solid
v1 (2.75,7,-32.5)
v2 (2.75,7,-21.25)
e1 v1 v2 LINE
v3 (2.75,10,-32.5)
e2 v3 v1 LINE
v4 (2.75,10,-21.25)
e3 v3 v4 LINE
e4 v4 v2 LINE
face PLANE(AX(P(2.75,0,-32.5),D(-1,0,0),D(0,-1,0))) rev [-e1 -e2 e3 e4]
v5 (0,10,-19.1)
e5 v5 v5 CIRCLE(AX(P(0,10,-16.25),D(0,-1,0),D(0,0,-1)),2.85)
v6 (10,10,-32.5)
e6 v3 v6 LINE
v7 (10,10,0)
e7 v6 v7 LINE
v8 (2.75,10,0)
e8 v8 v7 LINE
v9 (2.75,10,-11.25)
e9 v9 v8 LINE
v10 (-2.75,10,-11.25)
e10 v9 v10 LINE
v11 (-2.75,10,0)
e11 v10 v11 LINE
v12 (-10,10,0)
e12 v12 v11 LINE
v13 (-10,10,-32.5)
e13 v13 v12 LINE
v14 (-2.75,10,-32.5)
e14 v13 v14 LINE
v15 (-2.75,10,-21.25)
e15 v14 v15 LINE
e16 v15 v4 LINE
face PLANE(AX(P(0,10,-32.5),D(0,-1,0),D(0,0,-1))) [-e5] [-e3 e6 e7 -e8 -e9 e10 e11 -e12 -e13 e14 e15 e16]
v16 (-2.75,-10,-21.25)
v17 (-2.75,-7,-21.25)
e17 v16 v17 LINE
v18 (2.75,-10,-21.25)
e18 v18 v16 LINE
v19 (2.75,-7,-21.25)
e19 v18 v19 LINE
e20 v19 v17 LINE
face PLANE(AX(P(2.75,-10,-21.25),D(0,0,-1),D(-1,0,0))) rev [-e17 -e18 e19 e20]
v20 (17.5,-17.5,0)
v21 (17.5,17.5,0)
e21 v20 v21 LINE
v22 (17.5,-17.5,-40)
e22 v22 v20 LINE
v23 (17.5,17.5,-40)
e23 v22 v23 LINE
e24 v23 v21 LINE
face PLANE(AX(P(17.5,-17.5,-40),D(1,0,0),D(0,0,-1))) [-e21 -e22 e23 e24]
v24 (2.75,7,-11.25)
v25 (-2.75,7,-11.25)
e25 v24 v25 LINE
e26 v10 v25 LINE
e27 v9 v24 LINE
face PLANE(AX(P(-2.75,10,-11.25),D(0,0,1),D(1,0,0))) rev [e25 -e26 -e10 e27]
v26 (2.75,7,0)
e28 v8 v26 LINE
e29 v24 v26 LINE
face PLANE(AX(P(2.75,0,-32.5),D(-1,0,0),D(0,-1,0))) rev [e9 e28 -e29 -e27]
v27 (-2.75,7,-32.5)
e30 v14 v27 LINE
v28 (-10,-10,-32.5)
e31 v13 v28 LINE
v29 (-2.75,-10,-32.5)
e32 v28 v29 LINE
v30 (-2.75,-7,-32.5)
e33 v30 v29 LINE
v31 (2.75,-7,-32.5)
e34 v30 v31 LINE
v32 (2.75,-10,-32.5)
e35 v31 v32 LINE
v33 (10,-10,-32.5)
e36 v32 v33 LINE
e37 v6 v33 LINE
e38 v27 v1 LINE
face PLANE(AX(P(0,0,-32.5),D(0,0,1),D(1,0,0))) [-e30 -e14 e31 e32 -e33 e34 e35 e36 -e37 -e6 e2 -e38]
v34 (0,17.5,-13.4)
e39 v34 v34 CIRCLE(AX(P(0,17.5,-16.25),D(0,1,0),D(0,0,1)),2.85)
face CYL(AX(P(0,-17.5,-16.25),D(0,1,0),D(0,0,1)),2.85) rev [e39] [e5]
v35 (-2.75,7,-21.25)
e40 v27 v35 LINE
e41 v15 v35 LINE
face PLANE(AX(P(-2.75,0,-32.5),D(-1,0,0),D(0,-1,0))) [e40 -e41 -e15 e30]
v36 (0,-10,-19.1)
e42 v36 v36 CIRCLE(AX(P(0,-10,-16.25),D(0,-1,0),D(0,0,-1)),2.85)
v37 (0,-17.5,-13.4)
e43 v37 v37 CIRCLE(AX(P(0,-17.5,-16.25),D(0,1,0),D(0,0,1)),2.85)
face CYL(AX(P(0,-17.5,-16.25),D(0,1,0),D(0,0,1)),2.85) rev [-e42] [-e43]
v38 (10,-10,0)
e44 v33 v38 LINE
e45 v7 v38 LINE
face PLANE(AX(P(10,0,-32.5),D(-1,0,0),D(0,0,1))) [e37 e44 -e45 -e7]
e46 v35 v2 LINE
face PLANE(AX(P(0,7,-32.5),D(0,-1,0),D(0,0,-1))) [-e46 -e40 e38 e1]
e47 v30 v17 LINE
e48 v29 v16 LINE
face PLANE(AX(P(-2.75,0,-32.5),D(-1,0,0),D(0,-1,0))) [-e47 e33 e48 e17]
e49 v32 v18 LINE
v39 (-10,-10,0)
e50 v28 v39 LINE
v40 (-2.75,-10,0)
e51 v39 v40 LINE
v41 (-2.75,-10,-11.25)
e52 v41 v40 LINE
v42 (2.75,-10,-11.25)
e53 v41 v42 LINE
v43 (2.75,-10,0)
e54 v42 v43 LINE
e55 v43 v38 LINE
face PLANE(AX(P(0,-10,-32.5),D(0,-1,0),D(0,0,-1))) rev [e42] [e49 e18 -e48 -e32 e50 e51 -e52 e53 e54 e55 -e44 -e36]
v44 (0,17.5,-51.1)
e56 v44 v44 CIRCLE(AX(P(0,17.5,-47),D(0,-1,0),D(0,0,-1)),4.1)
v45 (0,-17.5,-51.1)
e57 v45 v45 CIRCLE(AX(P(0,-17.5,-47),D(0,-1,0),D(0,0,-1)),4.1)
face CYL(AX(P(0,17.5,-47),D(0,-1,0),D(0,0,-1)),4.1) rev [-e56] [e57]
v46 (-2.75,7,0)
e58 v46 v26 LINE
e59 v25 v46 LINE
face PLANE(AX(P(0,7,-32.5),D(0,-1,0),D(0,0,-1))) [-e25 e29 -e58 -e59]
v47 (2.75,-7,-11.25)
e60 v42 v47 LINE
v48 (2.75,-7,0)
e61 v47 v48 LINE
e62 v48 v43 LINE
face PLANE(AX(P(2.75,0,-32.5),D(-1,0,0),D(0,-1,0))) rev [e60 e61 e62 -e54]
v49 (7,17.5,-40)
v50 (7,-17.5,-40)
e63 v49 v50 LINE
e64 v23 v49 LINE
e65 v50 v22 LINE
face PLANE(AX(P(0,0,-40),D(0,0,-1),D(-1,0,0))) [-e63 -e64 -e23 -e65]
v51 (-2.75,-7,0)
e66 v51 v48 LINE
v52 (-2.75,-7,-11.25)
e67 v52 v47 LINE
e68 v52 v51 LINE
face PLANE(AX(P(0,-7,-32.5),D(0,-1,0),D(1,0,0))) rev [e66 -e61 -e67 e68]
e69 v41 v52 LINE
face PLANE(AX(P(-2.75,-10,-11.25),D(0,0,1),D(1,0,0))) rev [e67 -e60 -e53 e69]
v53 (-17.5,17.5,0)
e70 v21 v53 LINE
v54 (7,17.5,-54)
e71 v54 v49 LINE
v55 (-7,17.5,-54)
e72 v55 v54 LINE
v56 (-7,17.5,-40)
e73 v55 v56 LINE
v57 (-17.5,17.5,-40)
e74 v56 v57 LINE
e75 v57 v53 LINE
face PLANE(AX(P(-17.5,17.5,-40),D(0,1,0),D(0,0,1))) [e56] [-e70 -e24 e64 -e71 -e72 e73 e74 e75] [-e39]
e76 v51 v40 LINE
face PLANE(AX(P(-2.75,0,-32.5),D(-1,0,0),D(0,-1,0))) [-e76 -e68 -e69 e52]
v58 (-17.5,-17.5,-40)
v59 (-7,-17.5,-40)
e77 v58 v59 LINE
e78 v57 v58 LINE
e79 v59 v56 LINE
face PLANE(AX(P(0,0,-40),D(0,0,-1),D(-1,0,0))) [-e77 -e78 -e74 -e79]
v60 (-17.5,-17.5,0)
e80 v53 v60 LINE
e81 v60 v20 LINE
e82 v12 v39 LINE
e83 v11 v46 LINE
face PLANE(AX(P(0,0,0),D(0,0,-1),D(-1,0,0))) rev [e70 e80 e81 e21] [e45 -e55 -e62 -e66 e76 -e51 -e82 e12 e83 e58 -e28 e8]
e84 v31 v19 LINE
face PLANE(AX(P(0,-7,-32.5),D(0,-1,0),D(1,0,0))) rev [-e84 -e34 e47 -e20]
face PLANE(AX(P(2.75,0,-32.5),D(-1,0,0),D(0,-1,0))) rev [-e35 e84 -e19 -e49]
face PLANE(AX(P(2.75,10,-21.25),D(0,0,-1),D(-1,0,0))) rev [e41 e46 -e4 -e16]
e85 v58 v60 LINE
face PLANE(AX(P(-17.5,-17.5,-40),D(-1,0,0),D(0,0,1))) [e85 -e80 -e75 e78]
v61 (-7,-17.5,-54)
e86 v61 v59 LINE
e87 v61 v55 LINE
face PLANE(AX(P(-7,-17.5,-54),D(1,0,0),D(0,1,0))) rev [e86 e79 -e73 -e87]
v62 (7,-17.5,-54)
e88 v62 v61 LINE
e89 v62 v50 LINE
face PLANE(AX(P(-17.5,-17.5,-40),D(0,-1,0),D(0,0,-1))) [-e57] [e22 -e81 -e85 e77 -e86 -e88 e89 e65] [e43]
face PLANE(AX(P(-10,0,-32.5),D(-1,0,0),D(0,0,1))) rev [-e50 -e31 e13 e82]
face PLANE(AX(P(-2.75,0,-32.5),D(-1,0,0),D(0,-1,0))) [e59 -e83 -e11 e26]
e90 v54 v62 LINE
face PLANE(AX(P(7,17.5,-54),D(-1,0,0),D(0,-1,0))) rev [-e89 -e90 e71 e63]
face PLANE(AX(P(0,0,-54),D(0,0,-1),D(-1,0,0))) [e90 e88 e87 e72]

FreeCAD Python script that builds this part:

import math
import FreeCAD as App
import Part
import Sketcher

V = App.Vector
Q = App.Units.Quantity


def add_polygon(sketch, points):
    """Adds a closed chain of lines whose ends are joined by coincident constraints."""
    first, n = sketch.GeometryCount, len(points)
    for a, b in zip(points, points[1:] + points[:1]):
        sketch.addGeometry(Part.LineSegment(App.Vector(*a, 0), App.Vector(*b, 0)), False)
    for i in range(n):
        sketch.addConstraint(Sketcher.Constraint("Coincident", first + i, 2, first + (i + 1) % n, 1))

doc = App.newDocument("Part")
body = doc.addObject("PartDesign::Body", "Body")

sketch1 = body.newObject("Sketcher::SketchObject", "Sketch")
sketch1.AttachmentSupport = (doc.getObject("XY_Plane"), [""])
sketch1.MapMode = "FlatFace"
add_polygon(sketch1, [(-18, 18), (-18, -18), (18, -18), (18, 18)])
sketch1.addConstraint([
    Sketcher.Constraint("Vertical", 0),
    Sketcher.Constraint("Horizontal", 1),
    Sketcher.Constraint("Vertical", 2),
    Sketcher.Constraint("Horizontal", 3),
    Sketcher.Constraint("Symmetric", 0, 2, 2, 2, -1, 1),
    Sketcher.Constraint("Equal", 3, 0),
    Sketcher.Constraint("DistanceX", 1, 1, 1, 2, Q("35 mm")),
])
pad1 = body.newObject("PartDesign::Pad", "Pad")
pad1.Profile = sketch1
pad1.Length = 40
pad1.Reversed = True

sketch2 = body.newObject("Sketcher::SketchObject", "Sketch001")
sketch2.AttachmentSupport = (doc.getObject("XY_Plane"), [""])
sketch2.MapMode = "FlatFace"
add_polygon(sketch2, [(2.8, 7), (-2.8, 7), (-2.8, 10), (-10, 10), (-10, -10), (-2.8, -10), (-2.8, -7), (2.8, -7), (2.8, -10), (10, -10), (10, 10), (2.8, 10)])
sketch2.addConstraint([
    Sketcher.Constraint("Horizontal", 0),
    Sketcher.Constraint("Vertical", 1),
    Sketcher.Constraint("Horizontal", 2),
    Sketcher.Constraint("Vertical", 3),
    Sketcher.Constraint("Horizontal", 4),
    Sketcher.Constraint("Vertical", 5),
    Sketcher.Constraint("Horizontal", 6),
    Sketcher.Constraint("Vertical", 7),
    Sketcher.Constraint("Horizontal", 8),
    Sketcher.Constraint("Vertical", 9),
    Sketcher.Constraint("Horizontal", 10),
    Sketcher.Constraint("Vertical", 11),
    Sketcher.Constraint("Symmetric", 0, 2, 6, 2, -1, 1),
    Sketcher.Constraint("Symmetric", 2, 2, 8, 2, -1, 1),
    Sketcher.Constraint("Symmetric", 4, 2, 10, 2, -1, 1),
    Sketcher.Constraint("Symmetric", 4, 2, 7, 2, -2),
    Sketcher.Constraint("DistanceY", 1, 1, 1, 2, Q("3 mm")),
    Sketcher.Constraint("DistanceY", 3, 2, 3, 1, Q("20 mm")),
    Sketcher.Constraint("DistanceX", 0, 2, 0, 1, Q("5.5 mm")),
    Sketcher.Constraint("DistanceX", 2, 2, -1, 1, Q("10 mm")),
])
pocket1 = body.newObject("PartDesign::Pocket", "Pocket")
pocket1.Profile = sketch2
pocket1.Length = 32.5

sketch3 = body.newObject("Sketcher::SketchObject", "Sketch002")
sketch3.AttachmentSupport = (doc.getObject("XZ_Plane"), [""])
sketch3.MapMode = "FlatFace"
sketch3.AttachmentOffset = App.Placement(V(0, 0, -7), App.Rotation())
add_polygon(sketch3, [(-3, -11), (-3, -21), (3, -21), (3, -11)])
sketch3.addConstraint([
    Sketcher.Constraint("Vertical", 0),
    Sketcher.Constraint("Horizontal", 1),
    Sketcher.Constraint("Vertical", 2),
    Sketcher.Constraint("Horizontal", 3),
    Sketcher.Constraint("DistanceY", 0, 2, 0, 1, Q("10 mm")),
    Sketcher.Constraint("DistanceX", 1, 1, 1, 2, Q("5.5 mm")),
    Sketcher.Constraint("DistanceX", 0, 2, -1, 1, Q("2.75 mm")),
    Sketcher.Constraint("DistanceY", 0, 2, -1, 1, Q("21.25 mm")),
])
pocket2 = body.newObject("PartDesign::Pocket", "Pocket001")
pocket2.Profile = sketch3
pocket2.Length = 3

sketch4 = body.newObject("Sketcher::SketchObject", "Sketch003")
sketch4.AttachmentSupport = (doc.getObject("XZ_Plane"), [""])
sketch4.MapMode = "FlatFace"
sketch4.AttachmentOffset = App.Placement(V(0, 0, 7), App.Rotation())
add_polygon(sketch4, [(-3, -21), (-3, -11), (3, -11), (3, -21)])
sketch4.addConstraint([
    Sketcher.Constraint("Vertical", 0),
    Sketcher.Constraint("Horizontal", 1),
    Sketcher.Constraint("Vertical", 2),
    Sketcher.Constraint("Horizontal", 3),
    Sketcher.Constraint("DistanceY", 0, 1, 0, 2, Q("10 mm")),
    Sketcher.Constraint("DistanceX", 1, 1, 1, 2, Q("5.5 mm")),
    Sketcher.Constraint("DistanceX", 0, 2, -1, 1, Q("2.75 mm")),
    Sketcher.Constraint("DistanceY", 0, 2, -1, 1, Q("11.25 mm")),
])
pocket3 = body.newObject("PartDesign::Pocket", "Pocket002")
pocket3.Profile = sketch4
pocket3.Length = 3
pocket3.Reversed = True

sketch5 = body.newObject("Sketcher::SketchObject", "Sketch004")
sketch5.AttachmentSupport = (doc.getObject("XZ_Plane"), [""])
sketch5.MapMode = "FlatFace"
sketch5.AttachmentOffset = App.Placement(V(0, 0, -17.5), App.Rotation())
sketch5.addGeometry([
    Part.ArcOfCircle(Part.Circle(V(0, -16.2, 0), V(0, 0, 1), 2.9), math.radians(90), math.radians(270)),
    Part.ArcOfCircle(Part.Circle(V(0, -16.3, 0), V(0, 0, 1), 2.9), math.radians(0), math.radians(90)),
    Part.ArcOfCircle(Part.Circle(V(0, -16.2, 0), V(0, 0, 1), 2.9), math.radians(-90), math.radians(0)),
], False)
sketch5.addConstraint([
    Sketcher.Constraint("Tangent", 0, 1, 1, 2),
    Sketcher.Constraint("Tangent", 1, 1, 2, 2),
    Sketcher.Constraint("Tangent", 2, 1, 0, 2),
    Sketcher.Constraint("PointOnObject", 0, 3, -2),
    Sketcher.Constraint("PointOnObject", 0, 1, -2),
    Sketcher.Constraint("PointOnObject", 2, 1, -2),
    Sketcher.Constraint("Horizontal", 2, 3, 1, 1),
    Sketcher.Constraint("Radius", 0, Q("2.85 mm")),
    Sketcher.Constraint("DistanceY", 0, 1, -1, 1, Q("13.4 mm")),
])
pocket4 = body.newObject("PartDesign::Pocket", "Pocket003")
pocket4.Profile = sketch5
pocket4.Type = "ThroughAll"
pocket4.Reversed = True

sketch6 = body.newObject("Sketcher::SketchObject", "Sketch005")
sketch6.AttachmentSupport = (doc.getObject("XY_Plane"), [""])
sketch6.MapMode = "FlatFace"
sketch6.AttachmentOffset = App.Placement(V(0, 0, -40), App.Rotation())
add_polygon(sketch6, [(7, 18), (7, -18), (-7, -18), (-7, 18)])
sketch6.addConstraint([
    Sketcher.Constraint("Vertical", 0),
    Sketcher.Constraint("Horizontal", 1),
    Sketcher.Constraint("Vertical", 2),
    Sketcher.Constraint("Horizontal", 3),
    Sketcher.Constraint("Symmetric", 0, 2, 2, 2, -1, 1),
    Sketcher.Constraint("DistanceX", 1, 2, 1, 1, Q("14 mm")),
    Sketcher.Constraint("DistanceY", 0, 2, 0, 1, Q("35 mm")),
])
pad2 = body.newObject("PartDesign::Pad", "Pad001")
pad2.Profile = sketch6
pad2.Length = 14
pad2.Reversed = True

sketch7 = body.newObject("Sketcher::SketchObject", "Sketch006")
sketch7.AttachmentSupport = (doc.getObject("XZ_Plane"), [""])
sketch7.MapMode = "FlatFace"
sketch7.AttachmentOffset = App.Placement(V(0, 0, -17.5), App.Rotation())
sketch7.addGeometry([
    Part.ArcOfCircle(Part.Circle(V(0, -47, 0), V(0, 0, 1), 4), math.radians(90), math.radians(270)),
    Part.ArcOfCircle(Part.Circle(V(0, -47, 0), V(0, 0, 1), 4), math.radians(0), math.radians(90)),
    Part.ArcOfCircle(Part.Circle(V(0, -47, 0), V(0, 0, 1), 4), math.radians(-90), math.radians(0)),
], False)
sketch7.addConstraint([
    Sketcher.Constraint("Tangent", 0, 1, 1, 2),
    Sketcher.Constraint("Tangent", 1, 1, 2, 2),
    Sketcher.Constraint("Tangent", 2, 1, 0, 2),
    Sketcher.Constraint("PointOnObject", 0, 3, -2),
    Sketcher.Constraint("PointOnObject", 0, 1, -2),
    Sketcher.Constraint("PointOnObject", 2, 1, -2),
    Sketcher.Constraint("Horizontal", 2, 3, 1, 1),
    Sketcher.Constraint("Radius", 0, Q("4.03 mm")),
    Sketcher.Constraint("DistanceY", 0, 3, -1, 1, Q("47 mm")),
])
pocket5 = body.newObject("PartDesign::Pocket", "Pocket004")
pocket5.Profile = sketch7
pocket5.Type = "ThroughAll"
pocket5.Reversed = True

sketch8 = body.newObject("Sketcher::SketchObject", "Sketch007")
sketch8.AttachmentSupport = (doc.getObject("XZ_Plane"), [""])
sketch8.MapMode = "FlatFace"
sketch8.AttachmentOffset = App.Placement(V(0, 0, 17.5), App.Rotation())
sketch8.addGeometry(Part.Circle(V(0, -47, 0), V(0, 0, 1), 4.1), False)
sketch8.addConstraint([
    Sketcher.Constraint("PointOnObject", 0, 3, -2),
    Sketcher.Constraint("Diameter", 0, Q("8.2 mm")),
    Sketcher.Constraint("DistanceY", 0, 3, -1, 1, Q("47 mm")),
])
pocket6 = body.newObject("PartDesign::Pocket", "Pocket005")
pocket6.Profile = sketch8
pocket6.Type = "ThroughAll"

doc.recompute()
